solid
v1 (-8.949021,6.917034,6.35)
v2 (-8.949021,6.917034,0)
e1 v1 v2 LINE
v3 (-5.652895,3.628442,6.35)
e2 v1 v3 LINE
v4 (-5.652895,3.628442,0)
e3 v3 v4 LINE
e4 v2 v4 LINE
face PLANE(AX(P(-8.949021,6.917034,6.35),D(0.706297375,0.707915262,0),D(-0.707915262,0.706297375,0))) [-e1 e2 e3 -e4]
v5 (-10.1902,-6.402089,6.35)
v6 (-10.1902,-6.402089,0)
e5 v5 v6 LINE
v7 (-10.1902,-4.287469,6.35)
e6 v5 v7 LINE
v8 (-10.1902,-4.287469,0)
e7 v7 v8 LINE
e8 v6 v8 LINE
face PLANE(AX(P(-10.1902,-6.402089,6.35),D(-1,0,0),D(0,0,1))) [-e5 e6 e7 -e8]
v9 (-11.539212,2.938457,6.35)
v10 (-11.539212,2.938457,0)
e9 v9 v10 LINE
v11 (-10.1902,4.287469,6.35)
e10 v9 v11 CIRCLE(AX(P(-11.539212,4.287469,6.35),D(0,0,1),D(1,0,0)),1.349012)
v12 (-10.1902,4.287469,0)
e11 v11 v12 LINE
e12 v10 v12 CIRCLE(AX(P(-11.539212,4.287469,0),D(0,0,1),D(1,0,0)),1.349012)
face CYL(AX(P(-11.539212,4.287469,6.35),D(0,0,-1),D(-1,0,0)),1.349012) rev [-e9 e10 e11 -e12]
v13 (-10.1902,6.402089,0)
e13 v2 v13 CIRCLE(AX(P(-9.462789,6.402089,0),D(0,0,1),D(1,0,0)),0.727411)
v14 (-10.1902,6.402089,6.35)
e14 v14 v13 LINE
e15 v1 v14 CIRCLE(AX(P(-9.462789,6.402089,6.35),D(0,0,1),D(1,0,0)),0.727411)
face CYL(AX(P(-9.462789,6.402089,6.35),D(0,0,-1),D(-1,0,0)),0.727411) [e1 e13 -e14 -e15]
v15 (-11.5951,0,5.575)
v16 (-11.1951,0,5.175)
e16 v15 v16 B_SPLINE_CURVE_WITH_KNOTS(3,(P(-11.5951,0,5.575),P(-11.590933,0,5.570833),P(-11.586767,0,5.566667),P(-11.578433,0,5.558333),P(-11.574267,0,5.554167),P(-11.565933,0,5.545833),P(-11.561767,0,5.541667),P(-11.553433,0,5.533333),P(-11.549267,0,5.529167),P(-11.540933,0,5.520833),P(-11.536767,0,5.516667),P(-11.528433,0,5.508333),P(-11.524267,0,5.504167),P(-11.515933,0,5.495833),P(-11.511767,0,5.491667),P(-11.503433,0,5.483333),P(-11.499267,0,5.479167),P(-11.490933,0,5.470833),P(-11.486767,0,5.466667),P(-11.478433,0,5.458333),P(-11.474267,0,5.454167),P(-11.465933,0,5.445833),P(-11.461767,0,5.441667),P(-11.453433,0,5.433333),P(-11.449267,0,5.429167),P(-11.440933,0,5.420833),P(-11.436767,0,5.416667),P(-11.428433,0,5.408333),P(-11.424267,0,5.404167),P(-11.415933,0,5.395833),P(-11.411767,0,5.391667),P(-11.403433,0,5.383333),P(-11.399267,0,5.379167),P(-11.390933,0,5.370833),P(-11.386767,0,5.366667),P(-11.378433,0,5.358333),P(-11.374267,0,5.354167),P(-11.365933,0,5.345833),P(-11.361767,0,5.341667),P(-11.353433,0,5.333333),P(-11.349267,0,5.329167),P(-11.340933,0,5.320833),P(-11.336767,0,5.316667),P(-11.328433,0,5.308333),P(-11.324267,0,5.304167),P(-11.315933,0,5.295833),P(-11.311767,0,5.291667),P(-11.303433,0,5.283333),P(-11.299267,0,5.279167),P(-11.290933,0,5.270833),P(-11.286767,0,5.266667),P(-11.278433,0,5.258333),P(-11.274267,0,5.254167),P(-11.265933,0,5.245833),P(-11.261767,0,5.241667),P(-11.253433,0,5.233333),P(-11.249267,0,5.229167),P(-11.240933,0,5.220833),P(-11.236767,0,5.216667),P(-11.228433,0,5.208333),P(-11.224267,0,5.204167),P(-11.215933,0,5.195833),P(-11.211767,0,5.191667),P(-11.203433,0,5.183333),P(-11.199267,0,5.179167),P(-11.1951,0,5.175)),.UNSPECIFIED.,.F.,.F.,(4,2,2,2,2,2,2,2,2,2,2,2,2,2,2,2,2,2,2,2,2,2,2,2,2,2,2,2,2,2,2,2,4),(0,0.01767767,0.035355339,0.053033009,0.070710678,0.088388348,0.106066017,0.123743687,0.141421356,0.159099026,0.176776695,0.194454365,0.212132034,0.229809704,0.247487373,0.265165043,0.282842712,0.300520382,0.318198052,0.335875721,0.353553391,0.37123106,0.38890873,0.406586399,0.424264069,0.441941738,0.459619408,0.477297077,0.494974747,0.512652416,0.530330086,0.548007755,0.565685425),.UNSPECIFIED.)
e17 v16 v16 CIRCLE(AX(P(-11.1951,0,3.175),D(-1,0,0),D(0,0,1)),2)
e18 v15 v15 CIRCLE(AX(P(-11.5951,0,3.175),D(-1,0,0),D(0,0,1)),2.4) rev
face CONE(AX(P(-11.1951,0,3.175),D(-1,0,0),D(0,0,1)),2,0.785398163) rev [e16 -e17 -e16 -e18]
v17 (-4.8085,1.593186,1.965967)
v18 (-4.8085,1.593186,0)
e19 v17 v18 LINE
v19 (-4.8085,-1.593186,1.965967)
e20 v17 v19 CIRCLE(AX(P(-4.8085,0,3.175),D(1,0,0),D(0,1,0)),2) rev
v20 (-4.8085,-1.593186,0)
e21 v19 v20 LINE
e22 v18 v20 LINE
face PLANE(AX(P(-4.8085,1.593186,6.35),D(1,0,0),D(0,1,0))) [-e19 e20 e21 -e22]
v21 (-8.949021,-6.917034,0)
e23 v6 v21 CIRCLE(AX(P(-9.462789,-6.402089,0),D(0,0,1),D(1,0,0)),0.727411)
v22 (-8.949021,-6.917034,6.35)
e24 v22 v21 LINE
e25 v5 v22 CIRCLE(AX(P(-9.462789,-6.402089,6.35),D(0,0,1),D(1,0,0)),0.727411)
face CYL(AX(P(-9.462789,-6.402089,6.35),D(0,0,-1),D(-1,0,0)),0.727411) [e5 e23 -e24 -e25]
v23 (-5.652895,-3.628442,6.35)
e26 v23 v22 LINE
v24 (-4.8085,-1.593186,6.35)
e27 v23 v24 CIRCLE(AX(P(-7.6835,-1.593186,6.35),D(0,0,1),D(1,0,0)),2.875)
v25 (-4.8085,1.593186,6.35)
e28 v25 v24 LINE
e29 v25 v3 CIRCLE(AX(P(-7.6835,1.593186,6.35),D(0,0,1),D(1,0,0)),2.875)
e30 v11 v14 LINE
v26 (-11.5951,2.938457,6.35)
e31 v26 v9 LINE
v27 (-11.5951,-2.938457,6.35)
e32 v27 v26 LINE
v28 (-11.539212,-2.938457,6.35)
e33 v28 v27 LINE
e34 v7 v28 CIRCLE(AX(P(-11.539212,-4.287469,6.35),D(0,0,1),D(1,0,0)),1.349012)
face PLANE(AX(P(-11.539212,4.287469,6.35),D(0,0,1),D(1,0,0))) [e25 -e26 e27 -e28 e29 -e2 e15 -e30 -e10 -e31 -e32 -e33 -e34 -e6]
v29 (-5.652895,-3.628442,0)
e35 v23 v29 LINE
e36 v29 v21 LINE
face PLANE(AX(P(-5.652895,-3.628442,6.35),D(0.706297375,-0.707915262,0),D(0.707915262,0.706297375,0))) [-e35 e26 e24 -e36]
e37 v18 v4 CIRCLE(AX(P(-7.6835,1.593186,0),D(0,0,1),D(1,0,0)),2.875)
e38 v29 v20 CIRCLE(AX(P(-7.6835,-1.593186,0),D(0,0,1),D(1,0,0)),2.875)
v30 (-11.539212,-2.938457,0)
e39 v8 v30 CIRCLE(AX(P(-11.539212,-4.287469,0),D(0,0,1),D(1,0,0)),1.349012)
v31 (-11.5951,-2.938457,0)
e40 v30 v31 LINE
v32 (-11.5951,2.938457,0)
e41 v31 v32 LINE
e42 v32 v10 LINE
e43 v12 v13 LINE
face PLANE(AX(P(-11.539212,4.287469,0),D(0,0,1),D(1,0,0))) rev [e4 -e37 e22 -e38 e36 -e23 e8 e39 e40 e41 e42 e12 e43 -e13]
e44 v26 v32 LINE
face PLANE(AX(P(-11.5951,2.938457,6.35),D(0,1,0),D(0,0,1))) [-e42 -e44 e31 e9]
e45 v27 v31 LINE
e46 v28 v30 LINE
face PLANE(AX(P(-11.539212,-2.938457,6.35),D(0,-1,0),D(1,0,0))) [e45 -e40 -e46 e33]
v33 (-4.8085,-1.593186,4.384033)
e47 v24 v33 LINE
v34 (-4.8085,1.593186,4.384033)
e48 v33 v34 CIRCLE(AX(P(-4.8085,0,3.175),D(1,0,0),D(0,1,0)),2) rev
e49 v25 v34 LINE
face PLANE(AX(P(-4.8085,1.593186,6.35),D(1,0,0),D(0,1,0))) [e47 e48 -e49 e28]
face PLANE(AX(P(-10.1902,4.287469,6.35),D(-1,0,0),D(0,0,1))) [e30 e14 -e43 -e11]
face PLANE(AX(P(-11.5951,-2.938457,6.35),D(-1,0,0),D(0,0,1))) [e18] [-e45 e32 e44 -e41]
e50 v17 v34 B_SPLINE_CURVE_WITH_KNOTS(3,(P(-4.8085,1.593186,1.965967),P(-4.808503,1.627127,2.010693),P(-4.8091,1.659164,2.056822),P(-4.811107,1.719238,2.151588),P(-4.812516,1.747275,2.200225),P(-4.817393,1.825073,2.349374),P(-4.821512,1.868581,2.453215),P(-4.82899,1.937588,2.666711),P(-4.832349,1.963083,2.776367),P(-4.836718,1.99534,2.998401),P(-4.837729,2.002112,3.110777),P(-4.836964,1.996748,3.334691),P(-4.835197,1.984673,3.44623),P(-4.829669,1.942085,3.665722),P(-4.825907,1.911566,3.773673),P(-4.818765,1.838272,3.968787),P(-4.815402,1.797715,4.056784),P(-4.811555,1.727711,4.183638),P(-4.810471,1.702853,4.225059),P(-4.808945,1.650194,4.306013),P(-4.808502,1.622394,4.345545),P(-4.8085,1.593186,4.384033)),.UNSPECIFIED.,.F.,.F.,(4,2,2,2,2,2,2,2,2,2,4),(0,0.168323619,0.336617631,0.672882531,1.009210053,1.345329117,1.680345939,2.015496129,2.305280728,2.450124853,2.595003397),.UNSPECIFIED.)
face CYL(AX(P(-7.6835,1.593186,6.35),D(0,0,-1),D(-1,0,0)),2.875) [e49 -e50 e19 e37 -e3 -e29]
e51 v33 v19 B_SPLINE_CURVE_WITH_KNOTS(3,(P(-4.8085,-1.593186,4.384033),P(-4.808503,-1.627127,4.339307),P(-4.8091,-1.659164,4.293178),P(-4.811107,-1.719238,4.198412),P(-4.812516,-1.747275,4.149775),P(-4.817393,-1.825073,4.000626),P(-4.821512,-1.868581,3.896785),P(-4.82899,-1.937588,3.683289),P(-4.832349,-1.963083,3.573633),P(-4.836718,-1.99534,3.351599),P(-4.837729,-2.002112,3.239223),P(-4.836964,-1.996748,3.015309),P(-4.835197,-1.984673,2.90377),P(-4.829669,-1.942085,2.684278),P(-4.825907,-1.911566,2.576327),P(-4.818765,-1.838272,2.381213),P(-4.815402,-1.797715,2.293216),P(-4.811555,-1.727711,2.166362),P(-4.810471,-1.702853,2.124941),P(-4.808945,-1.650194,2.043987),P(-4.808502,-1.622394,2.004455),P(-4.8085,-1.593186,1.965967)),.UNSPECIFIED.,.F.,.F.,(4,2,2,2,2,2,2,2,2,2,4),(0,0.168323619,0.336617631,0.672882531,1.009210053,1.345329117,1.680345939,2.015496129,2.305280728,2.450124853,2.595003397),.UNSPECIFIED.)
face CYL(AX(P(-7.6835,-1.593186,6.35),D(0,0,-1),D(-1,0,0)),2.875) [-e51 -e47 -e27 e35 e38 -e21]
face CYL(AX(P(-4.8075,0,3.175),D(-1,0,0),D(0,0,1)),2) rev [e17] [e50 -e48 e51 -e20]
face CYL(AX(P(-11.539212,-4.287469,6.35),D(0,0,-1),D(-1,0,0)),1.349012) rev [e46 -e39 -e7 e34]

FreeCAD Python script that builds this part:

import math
import FreeCAD as App
import Part
import Sketcher
Q = App.Units.Quantity


def edges_at(feature, points):
    """Names of the edges that pass closest to the given points."""
    edges = feature.Shape.Edges
    near = lambda p: min(range(len(edges)), key=lambda i: edges[i].distToShape(Part.Vertex(*p))[0])
    return sorted({f"Edge{near(p) + 1}" for p in points})

doc = App.newDocument("Part")
body = doc.addObject("PartDesign::Body", "Body")

sketch1 = body.newObject("Sketcher::SketchObject", "Sketch")
sketch1.AttachmentSupport = (doc.getObject("XY_Plane"), [""])
sketch1.MapMode = "FlatFace"
sketch1.addGeometry(Part.LineSegment(App.Vector(-11.6, 2.94, 0), App.Vector(-11.6, -2.94, 0)), False)
sketch1.addGeometry(Part.LineSegment(App.Vector(-11.6, -2.94, 0), App.Vector(-11.54, -2.94, 0)), False)
sketch1.addGeometry(Part.ArcOfCircle(Part.Circle(App.Vector(-11.54, -4.29, 0), App.Vector(0, 0, 1), 1.35), math.radians(0), math.radians(90)), False)
sketch1.addGeometry(Part.LineSegment(App.Vector(-10.19, -4.29, 0), App.Vector(-10.19, -6.4, 0)), False)
sketch1.addGeometry(Part.ArcOfCircle(Part.Circle(App.Vector(-9.46, -6.4, 0), App.Vector(0, 0, 1), 0.73), math.radians(180), math.radians(315)), False)
sketch1.addGeometry(Part.LineSegment(App.Vector(-8.95, -6.92, 0), App.Vector(-5.65, -3.63, 0)), False)
sketch1.addGeometry(Part.ArcOfCircle(Part.Circle(App.Vector(-7.68, -1.59, 0), App.Vector(0, 0, 1), 2.88), math.radians(-45), math.radians(0)), False)
sketch1.addGeometry(Part.LineSegment(App.Vector(-4.81, -1.59, 0), App.Vector(-4.81, 1.59, 0)), False)
sketch1.addGeometry(Part.ArcOfCircle(Part.Circle(App.Vector(-7.68, 1.59, 0), App.Vector(0, 0, 1), 2.88), math.radians(0), math.radians(45)), False)
sketch1.addGeometry(Part.LineSegment(App.Vector(-5.65, 3.63, 0), App.Vector(-8.95, 6.92, 0)), False)
sketch1.addGeometry(Part.ArcOfCircle(Part.Circle(App.Vector(-9.46, 6.4, 0), App.Vector(0, 0, 1), 0.73), math.radians(45), math.radians(180)), False)
sketch1.addGeometry(Part.LineSegment(App.Vector(-10.19, 6.4, 0), App.Vector(-10.19, 4.29, 0)), False)
sketch1.addGeometry(Part.ArcOfCircle(Part.Circle(App.Vector(-11.54, 4.29, 0), App.Vector(0, 0, 1), 1.35), math.radians(-90), math.radians(0)), False)
sketch1.addGeometry(Part.LineSegment(App.Vector(-11.54, 2.94, 0), App.Vector(-11.6, 2.94, 0)), False)
sketch1.addConstraint(Sketcher.Constraint("Coincident", 0, 2, 1, 1))
sketch1.addConstraint(Sketcher.Constraint("Tangent", 1, 2, 2, 2))
sketch1.addConstraint(Sketcher.Constraint("Tangent", 2, 1, 3, 1))
sketch1.addConstraint(Sketcher.Constraint("Tangent", 3, 2, 4, 1))
sketch1.addConstraint(Sketcher.Constraint("Tangent", 4, 2, 5, 1))
sketch1.addConstraint(Sketcher.Constraint("Tangent", 5, 2, 6, 1))
sketch1.addConstraint(Sketcher.Constraint("Tangent", 6, 2, 7, 1))
sketch1.addConstraint(Sketcher.Constraint("Tangent", 7, 2, 8, 1))
sketch1.addConstraint(Sketcher.Constraint("Tangent", 8, 2, 9, 1))
sketch1.addConstraint(Sketcher.Constraint("Tangent", 9, 2, 10, 1))
sketch1.addConstraint(Sketcher.Constraint("Tangent", 10, 2, 11, 1))
sketch1.addConstraint(Sketcher.Constraint("Tangent", 11, 2, 12, 2))
sketch1.addConstraint(Sketcher.Constraint("Tangent", 12, 1, 13, 1))
sketch1.addConstraint(Sketcher.Constraint("Coincident", 13, 2, 0, 1))
sketch1.addConstraint(Sketcher.Constraint("Vertical", 0))
sketch1.addConstraint(Sketcher.Constraint("Horizontal", 1))
sketch1.addConstraint(Sketcher.Constraint("Vertical", 3))
sketch1.addConstraint(Sketcher.Constraint("Vertical", 7))
sketch1.addConstraint(Sketcher.Constraint("Vertical", 11))
sketch1.addConstraint(Sketcher.Constraint("Horizontal", 13))
sketch1.addConstraint(Sketcher.Constraint("Equal", 6, 8))
sketch1.addConstraint(Sketcher.Constraint("Equal", 4, 10))
sketch1.addConstraint(Sketcher.Constraint("Equal", 2, 12))
sketch1.addConstraint(Sketcher.Constraint("Symmetric", 4, 3, 10, 3, -1))
sketch1.addConstraint(Sketcher.Constraint("Vertical", 5, 2, 8, 2))
sketch1.addConstraint(Sketcher.Constraint("Equal", 3, 11))
sketch1.addConstraint(Sketcher.Constraint("Radius", 6, Q("2.875 mm")))
sketch1.addConstraint(Sketcher.Constraint("Radius", 4, Q("0.727411 mm")))
sketch1.addConstraint(Sketcher.Constraint("Radius", 2, Q("1.349012 mm")))
sketch1.addConstraint(Sketcher.Constraint("Distance", 5, Q("4.656102 mm")))
sketch1.addConstraint(Sketcher.Constraint("DistanceY", 3, 2, 3, 1, Q("2.11462 mm")))
sketch1.addConstraint(Sketcher.Constraint("DistanceY", 7, 1, 7, 2, Q("3.186371 mm")))
sketch1.addConstraint(Sketcher.Constraint("DistanceX", 6, 3, -1, 1, Q("7.6835 mm")))
sketch1.addConstraint(Sketcher.Constraint("DistanceX", 0, 2, -1, 1, Q("11.5951 mm")))
sketch1.addConstraint(Sketcher.Constraint("DistanceX", 2, 1, -1, 1, Q("10.1902 mm")))
pad1 = body.newObject("PartDesign::Pad", "Pad")
pad1.Profile = sketch1
pad1.Length = 6.35

sketch2 = body.newObject("Sketcher::SketchObject", "Sketch001")
sketch2.AttachmentSupport = (doc.getObject("YZ_Plane"), [""])
sketch2.MapMode = "FlatFace"
sketch2.AttachmentOffset = App.Placement(App.Vector(0, 0, -11.5951), App.Rotation())
sketch2.addGeometry(Part.Circle(App.Vector(0, 3.2, 0), App.Vector(0, 0, 1), 2), False)
sketch2.addConstraint(Sketcher.Constraint("PointOnObject", 0, 3, -2))
sketch2.addConstraint(Sketcher.Constraint("Diameter", 0, Q("4 mm")))
sketch2.addConstraint(Sketcher.Constraint("DistanceY", -1, 1, 0, 3, Q("3.175 mm")))
pocket1 = body.newObject("PartDesign::Pocket", "Pocket")
pocket1.Profile = sketch2
pocket1.Type = "UpToFirst"
pocket1.Reversed = True
doc.recompute()

chamfer = body.newObject("PartDesign::Chamfer", "Chamfer")
chamfer.Base = (pocket1, edges_at(pocket1, [(-11.595, 0, 1.175)]))
chamfer.Size = 0.4

doc.recompute()
